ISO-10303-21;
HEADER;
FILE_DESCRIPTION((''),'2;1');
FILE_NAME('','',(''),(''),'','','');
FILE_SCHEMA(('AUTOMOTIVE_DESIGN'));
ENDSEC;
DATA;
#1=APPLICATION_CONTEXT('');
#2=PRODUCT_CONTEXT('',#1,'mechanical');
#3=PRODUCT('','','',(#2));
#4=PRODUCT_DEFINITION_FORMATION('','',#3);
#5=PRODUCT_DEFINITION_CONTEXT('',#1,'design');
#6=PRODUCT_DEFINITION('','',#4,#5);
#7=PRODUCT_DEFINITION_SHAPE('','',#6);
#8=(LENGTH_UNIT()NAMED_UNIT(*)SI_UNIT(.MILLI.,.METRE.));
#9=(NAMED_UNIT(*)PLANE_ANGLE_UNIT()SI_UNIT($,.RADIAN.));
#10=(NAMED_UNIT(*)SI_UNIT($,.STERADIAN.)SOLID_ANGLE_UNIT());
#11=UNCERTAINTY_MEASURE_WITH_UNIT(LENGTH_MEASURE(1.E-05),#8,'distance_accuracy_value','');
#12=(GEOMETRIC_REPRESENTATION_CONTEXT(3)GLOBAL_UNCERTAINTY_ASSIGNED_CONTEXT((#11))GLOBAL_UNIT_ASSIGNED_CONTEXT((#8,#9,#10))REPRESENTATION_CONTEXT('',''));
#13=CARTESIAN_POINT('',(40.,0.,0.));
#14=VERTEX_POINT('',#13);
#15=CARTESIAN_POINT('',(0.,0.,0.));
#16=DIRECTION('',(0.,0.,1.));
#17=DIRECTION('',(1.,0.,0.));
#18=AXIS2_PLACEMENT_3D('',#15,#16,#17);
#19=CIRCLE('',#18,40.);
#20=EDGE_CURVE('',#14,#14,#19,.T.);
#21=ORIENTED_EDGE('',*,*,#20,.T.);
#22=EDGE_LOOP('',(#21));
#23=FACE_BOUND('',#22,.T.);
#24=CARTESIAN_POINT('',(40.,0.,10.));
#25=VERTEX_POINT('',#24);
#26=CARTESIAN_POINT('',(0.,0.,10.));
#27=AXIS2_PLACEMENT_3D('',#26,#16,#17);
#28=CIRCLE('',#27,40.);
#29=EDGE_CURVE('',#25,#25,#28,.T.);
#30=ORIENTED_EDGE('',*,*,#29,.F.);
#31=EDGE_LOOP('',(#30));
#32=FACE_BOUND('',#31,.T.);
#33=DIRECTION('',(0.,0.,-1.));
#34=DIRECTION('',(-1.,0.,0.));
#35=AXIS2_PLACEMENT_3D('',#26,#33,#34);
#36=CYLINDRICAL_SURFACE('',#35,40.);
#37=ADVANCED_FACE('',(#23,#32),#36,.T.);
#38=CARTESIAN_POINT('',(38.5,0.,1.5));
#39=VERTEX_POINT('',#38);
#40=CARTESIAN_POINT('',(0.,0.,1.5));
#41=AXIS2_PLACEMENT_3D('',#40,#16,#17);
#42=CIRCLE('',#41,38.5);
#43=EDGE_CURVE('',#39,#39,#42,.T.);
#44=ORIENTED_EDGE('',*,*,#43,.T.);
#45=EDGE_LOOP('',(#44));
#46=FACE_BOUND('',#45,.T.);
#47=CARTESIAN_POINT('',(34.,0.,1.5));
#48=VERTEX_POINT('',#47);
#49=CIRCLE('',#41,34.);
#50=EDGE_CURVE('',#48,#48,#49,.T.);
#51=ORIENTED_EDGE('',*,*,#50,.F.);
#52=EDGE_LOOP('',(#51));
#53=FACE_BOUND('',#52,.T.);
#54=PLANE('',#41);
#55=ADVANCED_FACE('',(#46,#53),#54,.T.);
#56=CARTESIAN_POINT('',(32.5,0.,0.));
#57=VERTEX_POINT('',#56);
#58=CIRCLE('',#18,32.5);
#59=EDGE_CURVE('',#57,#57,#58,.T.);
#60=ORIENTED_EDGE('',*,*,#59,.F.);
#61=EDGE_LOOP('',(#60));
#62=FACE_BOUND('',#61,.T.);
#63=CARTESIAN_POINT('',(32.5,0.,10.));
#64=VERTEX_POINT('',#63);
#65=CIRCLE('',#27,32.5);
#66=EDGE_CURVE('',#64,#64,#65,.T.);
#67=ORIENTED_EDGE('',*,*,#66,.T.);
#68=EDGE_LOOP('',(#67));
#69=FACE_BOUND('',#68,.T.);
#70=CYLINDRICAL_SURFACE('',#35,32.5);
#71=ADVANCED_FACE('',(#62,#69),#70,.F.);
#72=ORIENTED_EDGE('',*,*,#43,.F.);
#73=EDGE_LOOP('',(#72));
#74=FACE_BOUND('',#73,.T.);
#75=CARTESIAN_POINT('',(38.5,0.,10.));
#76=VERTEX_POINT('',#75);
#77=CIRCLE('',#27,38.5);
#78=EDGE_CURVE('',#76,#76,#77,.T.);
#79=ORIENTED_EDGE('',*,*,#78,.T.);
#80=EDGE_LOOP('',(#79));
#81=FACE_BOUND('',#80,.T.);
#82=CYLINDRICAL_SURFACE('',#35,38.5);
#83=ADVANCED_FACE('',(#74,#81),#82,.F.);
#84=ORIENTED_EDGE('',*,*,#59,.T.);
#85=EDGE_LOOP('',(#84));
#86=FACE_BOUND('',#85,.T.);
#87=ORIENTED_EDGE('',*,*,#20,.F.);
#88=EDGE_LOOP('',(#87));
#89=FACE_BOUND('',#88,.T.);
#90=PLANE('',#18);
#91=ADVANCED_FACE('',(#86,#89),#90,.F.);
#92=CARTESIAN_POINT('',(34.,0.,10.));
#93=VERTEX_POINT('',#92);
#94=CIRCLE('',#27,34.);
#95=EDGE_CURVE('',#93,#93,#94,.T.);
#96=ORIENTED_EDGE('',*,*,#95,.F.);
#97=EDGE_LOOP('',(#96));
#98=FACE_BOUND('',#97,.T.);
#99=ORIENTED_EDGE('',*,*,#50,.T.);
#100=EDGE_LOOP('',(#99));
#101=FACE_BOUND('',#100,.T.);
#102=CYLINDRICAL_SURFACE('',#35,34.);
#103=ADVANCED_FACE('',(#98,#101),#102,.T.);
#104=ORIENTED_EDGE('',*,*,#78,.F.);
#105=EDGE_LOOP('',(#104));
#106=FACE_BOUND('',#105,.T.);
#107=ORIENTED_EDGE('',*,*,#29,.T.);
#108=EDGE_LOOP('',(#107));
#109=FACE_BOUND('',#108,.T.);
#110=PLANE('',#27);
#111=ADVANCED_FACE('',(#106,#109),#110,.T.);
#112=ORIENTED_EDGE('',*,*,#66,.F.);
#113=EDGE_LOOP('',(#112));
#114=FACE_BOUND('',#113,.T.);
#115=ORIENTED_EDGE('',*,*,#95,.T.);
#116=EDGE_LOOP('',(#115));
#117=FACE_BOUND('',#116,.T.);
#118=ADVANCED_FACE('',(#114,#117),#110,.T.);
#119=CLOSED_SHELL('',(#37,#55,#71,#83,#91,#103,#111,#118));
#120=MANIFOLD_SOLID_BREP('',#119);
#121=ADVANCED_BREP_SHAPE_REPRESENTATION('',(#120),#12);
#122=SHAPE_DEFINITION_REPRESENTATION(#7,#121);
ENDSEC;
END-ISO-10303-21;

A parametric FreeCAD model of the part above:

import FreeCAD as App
import Part
import Sketcher


def faces_at(feature, points):
    """Names of the faces that lie closest to the given points."""
    faces = feature.Shape.Faces
    near = lambda p: min(range(len(faces)), key=lambda i: faces[i].distToShape(Part.Vertex(*p))[0])
    return sorted({f"Face{near(p) + 1}" for p in points})

doc = App.newDocument("Part")
body = doc.addObject("PartDesign::Body", "Body")

sketch1 = body.newObject("Sketcher::SketchObject", "Sketch")
sketch1.AttachmentSupport = (doc.getObject("XY_Plane"), [""])
sketch1.MapMode = "FlatFace"
sketch1.addGeometry([
    Part.Circle(App.Vector(0, 0, 0), App.Vector(0, 0, 1), 40),
    Part.Circle(App.Vector(0, 0, 0), App.Vector(0, 0, 1), 32),
], False)
sketch1.addConstraint([
    Sketcher.Constraint("Coincident", 0, 3, -1, 1),
    Sketcher.Constraint("Coincident", 1, 3, -1, 1),
    Sketcher.Constraint("Diameter", 0, 80.0),
    Sketcher.Constraint("Diameter", 1, 65.0),
])
pad1 = body.newObject("PartDesign::Pad", "Pad")
pad1.Profile = sketch1
pad1.Length = 10
doc.recompute()

thickness = body.newObject("PartDesign::Thickness", "Thickness")
thickness.Base = (pad1, faces_at(pad1, [(-37.6, 0, 10)]))
thickness.Value = 1.5
thickness.Reversed = True
thickness.Join = "Intersection"

doc.recompute()
